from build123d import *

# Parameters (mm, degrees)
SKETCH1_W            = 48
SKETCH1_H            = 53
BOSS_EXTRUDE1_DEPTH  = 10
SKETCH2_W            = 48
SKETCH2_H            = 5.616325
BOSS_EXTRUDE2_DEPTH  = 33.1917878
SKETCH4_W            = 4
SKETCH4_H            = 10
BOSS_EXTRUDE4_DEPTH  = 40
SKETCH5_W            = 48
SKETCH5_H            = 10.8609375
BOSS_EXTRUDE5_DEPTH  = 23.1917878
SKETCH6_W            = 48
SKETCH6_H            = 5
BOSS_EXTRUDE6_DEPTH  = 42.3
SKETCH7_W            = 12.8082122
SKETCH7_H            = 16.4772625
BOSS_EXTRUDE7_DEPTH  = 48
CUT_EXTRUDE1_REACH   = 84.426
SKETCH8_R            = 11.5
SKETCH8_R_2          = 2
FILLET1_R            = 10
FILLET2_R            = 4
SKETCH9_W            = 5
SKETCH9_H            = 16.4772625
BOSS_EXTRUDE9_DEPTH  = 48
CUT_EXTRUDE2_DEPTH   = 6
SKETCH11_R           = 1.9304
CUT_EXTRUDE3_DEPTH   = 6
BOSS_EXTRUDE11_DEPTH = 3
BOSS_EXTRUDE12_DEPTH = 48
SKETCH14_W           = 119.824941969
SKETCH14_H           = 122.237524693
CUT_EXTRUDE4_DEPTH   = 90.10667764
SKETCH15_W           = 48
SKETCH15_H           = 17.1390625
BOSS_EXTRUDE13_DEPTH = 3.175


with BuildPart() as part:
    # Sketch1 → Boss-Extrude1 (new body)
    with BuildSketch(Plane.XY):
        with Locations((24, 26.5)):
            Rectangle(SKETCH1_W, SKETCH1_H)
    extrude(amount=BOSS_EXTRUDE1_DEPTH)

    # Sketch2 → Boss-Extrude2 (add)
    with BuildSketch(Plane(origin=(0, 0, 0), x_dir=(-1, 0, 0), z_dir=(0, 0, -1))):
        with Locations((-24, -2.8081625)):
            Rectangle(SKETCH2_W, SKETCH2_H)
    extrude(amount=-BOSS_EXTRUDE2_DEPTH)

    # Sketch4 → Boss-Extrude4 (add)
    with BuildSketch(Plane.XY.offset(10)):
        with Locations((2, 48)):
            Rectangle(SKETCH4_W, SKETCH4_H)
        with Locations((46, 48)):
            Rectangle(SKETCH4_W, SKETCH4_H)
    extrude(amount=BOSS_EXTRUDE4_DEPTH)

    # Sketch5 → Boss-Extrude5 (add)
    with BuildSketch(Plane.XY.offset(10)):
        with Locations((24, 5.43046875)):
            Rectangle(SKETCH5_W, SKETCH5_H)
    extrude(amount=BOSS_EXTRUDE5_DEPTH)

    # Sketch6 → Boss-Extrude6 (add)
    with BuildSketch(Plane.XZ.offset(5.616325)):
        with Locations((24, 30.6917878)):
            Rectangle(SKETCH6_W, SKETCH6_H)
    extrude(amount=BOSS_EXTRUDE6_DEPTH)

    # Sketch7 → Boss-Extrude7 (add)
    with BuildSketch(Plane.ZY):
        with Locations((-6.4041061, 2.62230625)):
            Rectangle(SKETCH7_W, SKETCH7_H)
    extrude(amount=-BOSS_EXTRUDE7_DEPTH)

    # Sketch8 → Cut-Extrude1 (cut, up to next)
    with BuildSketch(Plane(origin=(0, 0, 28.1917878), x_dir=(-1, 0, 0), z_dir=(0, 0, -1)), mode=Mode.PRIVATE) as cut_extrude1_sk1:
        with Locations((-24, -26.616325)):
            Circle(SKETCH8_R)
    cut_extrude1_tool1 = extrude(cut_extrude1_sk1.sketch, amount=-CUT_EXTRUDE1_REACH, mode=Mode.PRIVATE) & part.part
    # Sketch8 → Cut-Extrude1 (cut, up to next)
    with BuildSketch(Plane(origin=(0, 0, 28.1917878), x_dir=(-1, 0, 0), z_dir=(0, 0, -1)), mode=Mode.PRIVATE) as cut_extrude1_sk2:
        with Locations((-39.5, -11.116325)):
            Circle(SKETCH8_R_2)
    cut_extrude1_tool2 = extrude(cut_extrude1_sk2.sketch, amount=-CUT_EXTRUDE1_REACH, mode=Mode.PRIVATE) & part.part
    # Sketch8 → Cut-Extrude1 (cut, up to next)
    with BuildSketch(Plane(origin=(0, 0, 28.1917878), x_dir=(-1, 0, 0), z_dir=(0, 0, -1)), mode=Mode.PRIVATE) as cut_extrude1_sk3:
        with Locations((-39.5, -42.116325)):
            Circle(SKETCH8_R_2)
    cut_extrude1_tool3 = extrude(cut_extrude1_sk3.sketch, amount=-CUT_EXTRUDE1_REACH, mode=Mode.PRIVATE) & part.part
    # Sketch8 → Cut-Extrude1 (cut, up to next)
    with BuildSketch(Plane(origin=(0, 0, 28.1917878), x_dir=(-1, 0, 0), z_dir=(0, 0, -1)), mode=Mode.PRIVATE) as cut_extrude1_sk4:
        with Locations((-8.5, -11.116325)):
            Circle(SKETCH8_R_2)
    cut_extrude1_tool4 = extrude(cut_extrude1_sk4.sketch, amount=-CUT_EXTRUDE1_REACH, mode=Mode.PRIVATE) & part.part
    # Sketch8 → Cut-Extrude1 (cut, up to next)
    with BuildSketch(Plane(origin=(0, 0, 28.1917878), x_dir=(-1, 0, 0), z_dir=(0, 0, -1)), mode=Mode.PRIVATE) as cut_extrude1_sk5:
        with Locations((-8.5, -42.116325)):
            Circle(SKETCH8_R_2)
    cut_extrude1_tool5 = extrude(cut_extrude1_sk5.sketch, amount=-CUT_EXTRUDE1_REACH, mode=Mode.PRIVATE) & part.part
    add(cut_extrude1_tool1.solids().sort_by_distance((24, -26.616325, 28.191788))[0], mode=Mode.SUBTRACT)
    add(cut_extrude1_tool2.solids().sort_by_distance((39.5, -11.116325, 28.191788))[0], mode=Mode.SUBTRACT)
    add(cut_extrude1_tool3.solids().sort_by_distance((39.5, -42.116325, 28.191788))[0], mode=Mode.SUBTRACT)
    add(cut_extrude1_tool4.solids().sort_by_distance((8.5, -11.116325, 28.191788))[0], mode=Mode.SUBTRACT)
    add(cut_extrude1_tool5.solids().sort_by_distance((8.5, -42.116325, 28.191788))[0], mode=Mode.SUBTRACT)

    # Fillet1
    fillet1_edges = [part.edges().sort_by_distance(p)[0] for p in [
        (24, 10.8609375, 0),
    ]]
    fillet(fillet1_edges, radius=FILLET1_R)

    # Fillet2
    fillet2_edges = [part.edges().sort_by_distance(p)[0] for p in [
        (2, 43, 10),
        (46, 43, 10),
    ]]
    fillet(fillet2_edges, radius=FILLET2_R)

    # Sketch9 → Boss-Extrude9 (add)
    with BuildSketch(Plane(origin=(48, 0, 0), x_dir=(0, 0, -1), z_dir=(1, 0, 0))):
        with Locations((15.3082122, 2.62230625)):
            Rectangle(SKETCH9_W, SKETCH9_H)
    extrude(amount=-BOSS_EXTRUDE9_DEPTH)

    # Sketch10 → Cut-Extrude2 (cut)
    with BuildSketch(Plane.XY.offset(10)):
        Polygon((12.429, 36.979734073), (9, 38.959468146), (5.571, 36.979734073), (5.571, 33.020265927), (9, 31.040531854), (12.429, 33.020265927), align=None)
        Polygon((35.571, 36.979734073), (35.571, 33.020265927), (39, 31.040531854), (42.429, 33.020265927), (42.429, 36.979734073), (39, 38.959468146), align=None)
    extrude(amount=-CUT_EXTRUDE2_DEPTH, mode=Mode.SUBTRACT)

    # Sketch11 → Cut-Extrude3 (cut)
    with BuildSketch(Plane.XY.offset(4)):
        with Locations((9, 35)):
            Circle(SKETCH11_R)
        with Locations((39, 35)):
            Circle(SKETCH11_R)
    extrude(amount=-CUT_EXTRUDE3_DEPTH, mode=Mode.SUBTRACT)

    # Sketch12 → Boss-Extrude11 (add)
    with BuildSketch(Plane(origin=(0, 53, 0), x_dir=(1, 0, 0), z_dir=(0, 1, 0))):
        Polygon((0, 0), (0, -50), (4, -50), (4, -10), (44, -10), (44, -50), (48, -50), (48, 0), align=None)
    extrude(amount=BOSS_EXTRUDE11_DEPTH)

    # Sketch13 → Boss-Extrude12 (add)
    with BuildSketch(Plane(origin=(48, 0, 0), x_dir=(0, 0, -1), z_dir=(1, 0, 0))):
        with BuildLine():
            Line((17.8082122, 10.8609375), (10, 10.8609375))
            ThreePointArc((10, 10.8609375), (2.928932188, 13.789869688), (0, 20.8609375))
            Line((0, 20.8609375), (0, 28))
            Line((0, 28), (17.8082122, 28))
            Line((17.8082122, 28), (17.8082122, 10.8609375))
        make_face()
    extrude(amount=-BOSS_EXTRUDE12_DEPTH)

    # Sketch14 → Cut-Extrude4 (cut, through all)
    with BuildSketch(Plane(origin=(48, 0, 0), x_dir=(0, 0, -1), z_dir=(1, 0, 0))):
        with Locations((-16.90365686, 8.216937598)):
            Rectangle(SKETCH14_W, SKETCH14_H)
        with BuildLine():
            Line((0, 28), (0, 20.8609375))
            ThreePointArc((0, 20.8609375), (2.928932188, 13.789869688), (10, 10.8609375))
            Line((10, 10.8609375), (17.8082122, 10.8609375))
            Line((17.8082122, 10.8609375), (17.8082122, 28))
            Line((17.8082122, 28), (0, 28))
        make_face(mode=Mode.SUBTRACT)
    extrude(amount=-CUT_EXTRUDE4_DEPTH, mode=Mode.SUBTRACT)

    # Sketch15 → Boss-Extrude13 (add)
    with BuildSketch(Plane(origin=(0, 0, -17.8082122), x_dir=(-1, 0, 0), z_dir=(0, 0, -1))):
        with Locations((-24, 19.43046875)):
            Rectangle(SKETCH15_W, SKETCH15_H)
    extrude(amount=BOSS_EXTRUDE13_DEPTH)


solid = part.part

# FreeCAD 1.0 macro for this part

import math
import FreeCAD as App
import Part
import Sketcher
Q = App.Units.Quantity


def edges_at(feature, points):
    """Names of the edges that pass closest to the given points."""
    edges = feature.Shape.Edges
    near = lambda p: min(range(len(edges)), key=lambda i: edges[i].distToShape(Part.Vertex(*p))[0])
    return sorted({f"Edge{near(p) + 1}" for p in points})

doc = App.newDocument("Part")
body = doc.addObject("PartDesign::Body", "Body")

sketch1 = body.newObject("Sketcher::SketchObject", "Sketch")
sketch1.AttachmentSupport = (doc.getObject("XY_Plane"), [""])
sketch1.MapMode = "FlatFace"
sketch1.addGeometry([
    Part.LineSegment(App.Vector(0, 53, 0), App.Vector(0, 0, 0)),
    Part.LineSegment(App.Vector(0, 0, 0), App.Vector(48, 0, 0)),
    Part.LineSegment(App.Vector(48, 0, 0), App.Vector(48, 53, 0)),
    Part.LineSegment(App.Vector(48, 53, 0), App.Vector(0, 53, 0)),
], False)
sketch1.addConstraint([
    Sketcher.Constraint("Coincident", 0, 2, 1, 1),
    Sketcher.Constraint("Coincident", 1, 2, 2, 1),
    Sketcher.Constraint("Coincident", 2, 2, 3, 1),
    Sketcher.Constraint("Coincident", 3, 2, 0, 1),
    Sketcher.Constraint("Vertical", 0),
    Sketcher.Constraint("Horizontal", 1),
    Sketcher.Constraint("Vertical", 2),
    Sketcher.Constraint("Horizontal", 3),
    Sketcher.Constraint("Coincident", 0, 2, -1, 1),
    Sketcher.Constraint("DistanceX", 1, 1, 1, 2, Q("48 mm")),
    Sketcher.Constraint("DistanceY", 0, 2, 0, 1, Q("53 mm")),
])
pad1 = body.newObject("PartDesign::Pad", "Pad")
pad1.Profile = sketch1
pad1.Length = 10

sketch2 = body.newObject("Sketcher::SketchObject", "Sketch001")
sketch2.AttachmentSupport = (doc.getObject("XY_Plane"), [""])
sketch2.MapMode = "FlatFace"
sketch2.addGeometry([
    Part.LineSegment(App.Vector(48, 0, 0), App.Vector(48, -5.616325, 0)),
    Part.LineSegment(App.Vector(48, -5.616325, 0), App.Vector(0, -5.616325, 0)),
    Part.LineSegment(App.Vector(0, -5.616325, 0), App.Vector(0, 0, 0)),
    Part.LineSegment(App.Vector(0, 0, 0), App.Vector(48, 0, 0)),
], False)
sketch2.addConstraint([
    Sketcher.Constraint("Coincident", 0, 2, 1, 1),
    Sketcher.Constraint("Coincident", 1, 2, 2, 1),
    Sketcher.Constraint("Coincident", 2, 2, 3, 1),
    Sketcher.Constraint("Coincident", 3, 2, 0, 1),
    Sketcher.Constraint("Vertical", 0),
    Sketcher.Constraint("Horizontal", 1),
    Sketcher.Constraint("Vertical", 2),
    Sketcher.Constraint("Horizontal", 3),
    Sketcher.Constraint("Coincident", 2, 2, -1, 1),
    Sketcher.Constraint("DistanceX", 1, 2, 1, 1, Q("48 mm")),
    Sketcher.Constraint("DistanceY", 0, 2, 0, 1, Q("5.616325 mm")),
])
pad2 = body.newObject("PartDesign::Pad", "Pad001")
pad2.Profile = sketch2
pad2.Length = 33.191788

sketch3 = body.newObject("Sketcher::SketchObject", "Sketch002")
sketch3.AttachmentSupport = (doc.getObject("XY_Plane"), [""])
sketch3.MapMode = "FlatFace"
sketch3.AttachmentOffset = App.Placement(App.Vector(0, 0, 10), App.Rotation())
sketch3.addGeometry([
    Part.LineSegment(App.Vector(0, 53, 0), App.Vector(0, 43, 0)),
    Part.LineSegment(App.Vector(0, 43, 0), App.Vector(4, 43, 0)),
    Part.LineSegment(App.Vector(4, 43, 0), App.Vector(4, 53, 0)),
    Part.LineSegment(App.Vector(4, 53, 0), App.Vector(0, 53, 0)),
    Part.LineSegment(App.Vector(44, 53, 0), App.Vector(44, 43, 0)),
    Part.LineSegment(App.Vector(44, 43, 0), App.Vector(48, 43, 0)),
    Part.LineSegment(App.Vector(48, 43, 0), App.Vector(48, 53, 0)),
    Part.LineSegment(App.Vector(48, 53, 0), App.Vector(44, 53, 0)),
], False)
sketch3.addConstraint([
    Sketcher.Constraint("Coincident", 0, 2, 1, 1),
    Sketcher.Constraint("Coincident", 1, 2, 2, 1),
    Sketcher.Constraint("Coincident", 2, 2, 3, 1),
    Sketcher.Constraint("Coincident", 3, 2, 0, 1),
    Sketcher.Constraint("Coincident", 4, 2, 5, 1),
    Sketcher.Constraint("Coincident", 5, 2, 6, 1),
    Sketcher.Constraint("Coincident", 6, 2, 7, 1),
    Sketcher.Constraint("Coincident", 7, 2, 4, 1),
    Sketcher.Constraint("Vertical", 0),
    Sketcher.Constraint("Horizontal", 1),
    Sketcher.Constraint("Vertical", 2),
    Sketcher.Constraint("Horizontal", 3),
    Sketcher.Constraint("Vertical", 4),
    Sketcher.Constraint("Horizontal", 5),
    Sketcher.Constraint("Vertical", 6),
    Sketcher.Constraint("Horizontal", 7),
    Sketcher.Constraint("PointOnObject", 0, 2, -2),
    Sketcher.Constraint("Horizontal", 1, 2, 4, 2),
    Sketcher.Constraint("Horizontal", 3, 2, 6, 2),
    Sketcher.Constraint("Equal", 3, 5),
    Sketcher.Constraint("DistanceX", 1, 1, 1, 2, Q("4 mm")),
    Sketcher.Constraint("DistanceY", 0, 2, 0, 1, Q("10 mm")),
    Sketcher.Constraint("DistanceY", -1, 1, 0, 2, Q("43 mm")),
    Sketcher.Constraint("DistanceX", -1, 1, 4, 2, Q("44 mm")),
])
pad3 = body.newObject("PartDesign::Pad", "Pad002")
pad3.Profile = sketch3
pad3.Length = 40

sketch4 = body.newObject("Sketcher::SketchObject", "Sketch003")
sketch4.AttachmentSupport = (doc.getObject("XY_Plane"), [""])
sketch4.MapMode = "FlatFace"
sketch4.AttachmentOffset = App.Placement(App.Vector(0, 0, 10), App.Rotation())
sketch4.addGeometry([
    Part.LineSegment(App.Vector(0, 10.860938, 0), App.Vector(0, 0, 0)),
    Part.LineSegment(App.Vector(0, 0, 0), App.Vector(48, 0, 0)),
    Part.LineSegment(App.Vector(48, 0, 0), App.Vector(48, 10.860938, 0)),
    Part.LineSegment(App.Vector(48, 10.860938, 0), App.Vector(0, 10.860938, 0)),
], False)
sketch4.addConstraint([
    Sketcher.Constraint("Coincident", 0, 2, 1, 1),
    Sketcher.Constraint("Coincident", 1, 2, 2, 1),
    Sketcher.Constraint("Coincident", 2, 2, 3, 1),
    Sketcher.Constraint("Coincident", 3, 2, 0, 1),
    Sketcher.Constraint("Vertical", 0),
    Sketcher.Constraint("Horizontal", 1),
    Sketcher.Constraint("Vertical", 2),
    Sketcher.Constraint("Horizontal", 3),
    Sketcher.Constraint("Coincident", 0, 2, -1, 1),
    Sketcher.Constraint("DistanceX", 1, 1, 1, 2, Q("48 mm")),
    Sketcher.Constraint("DistanceY", 0, 2, 0, 1, Q("10.860938 mm")),
])
pad4 = body.newObject("PartDesign::Pad", "Pad003")
pad4.Profile = sketch4
pad4.Length = 23.191788

sketch5 = body.newObject("Sketcher::SketchObject", "Sketch004")
sketch5.AttachmentSupport = (doc.getObject("XZ_Plane"), [""])
sketch5.MapMode = "FlatFace"
sketch5.AttachmentOffset = App.Placement(App.Vector(0, 0, 5.616325), App.Rotation())
sketch5.addGeometry([
    Part.LineSegment(App.Vector(0, 33.191788, 0), App.Vector(0, 28.191788, 0)),
    Part.LineSegment(App.Vector(0, 28.191788, 0), App.Vector(48, 28.191788, 0)),
    Part.LineSegment(App.Vector(48, 28.191788, 0), App.Vector(48, 33.191788, 0)),
    Part.LineSegment(App.Vector(48, 33.191788, 0), App.Vector(0, 33.191788, 0)),
], False)
sketch5.addConstraint([
    Sketcher.Constraint("Coincident", 0, 2, 1, 1),
    Sketcher.Constraint("Coincident", 1, 2, 2, 1),
    Sketcher.Constraint("Coincident", 2, 2, 3, 1),
    Sketcher.Constraint("Coincident", 3, 2, 0, 1),
    Sketcher.Constraint("Vertical", 0),
    Sketcher.Constraint("Horizontal", 1),
    Sketcher.Constraint("Vertical", 2),
    Sketcher.Constraint("Horizontal", 3),
    Sketcher.Constraint("PointOnObject", 0, 2, -2),
    Sketcher.Constraint("DistanceX", 1, 1, 1, 2, Q("48 mm")),
    Sketcher.Constraint("DistanceY", 0, 2, 0, 1, Q("5 mm")),
    Sketcher.Constraint("DistanceY", -1, 1, 0, 2, Q("28.191788 mm")),
])
pad5 = body.newObject("PartDesign::Pad", "Pad004")
pad5.Profile = sketch5
pad5.Length = 42.3

sketch6 = body.newObject("Sketcher::SketchObject", "Sketch005")
sketch6.AttachmentSupport = (doc.getObject("YZ_Plane"), [""])
sketch6.MapMode = "FlatFace"
sketch6.addGeometry([
    Part.LineSegment(App.Vector(10.860938, -12.808212, 0), App.Vector(-5.616325, -12.808212, 0)),
    Part.LineSegment(App.Vector(-5.616325, -12.808212, 0), App.Vector(-5.616325, 0, 0)),
    Part.LineSegment(App.Vector(-5.616325, 0, 0), App.Vector(10.860938, 0, 0)),
    Part.LineSegment(App.Vector(10.860938, 0, 0), App.Vector(10.860938, -12.808212, 0)),
], False)
sketch6.addConstraint([
    Sketcher.Constraint("Coincident", 0, 2, 1, 1),
    Sketcher.Constraint("Coincident", 1, 2, 2, 1),
    Sketcher.Constraint("Coincident", 2, 2, 3, 1),
    Sketcher.Constraint("Coincident", 3, 2, 0, 1),
    Sketcher.Constraint("Horizontal", 0),
    Sketcher.Constraint("Vertical", 1),
    Sketcher.Constraint("Horizontal", 2),
    Sketcher.Constraint("Vertical", 3),
    Sketcher.Constraint("PointOnObject", 1, 2, -1),
    Sketcher.Constraint("DistanceX", 0, 2, 0, 1, Q("16.477263 mm")),
    Sketcher.Constraint("DistanceY", 1, 1, 1, 2, Q("12.808212 mm")),
    Sketcher.Constraint("DistanceX", 0, 2, -1, 1, Q("5.616325 mm")),
])
pad6 = body.newObject("PartDesign::Pad", "Pad005")
pad6.Profile = sketch6
pad6.Length = 48

sketch7 = body.newObject("Sketcher::SketchObject", "Sketch006")
sketch7.AttachmentSupport = (doc.getObject("XY_Plane"), [""])
sketch7.MapMode = "FlatFace"
sketch7.AttachmentOffset = App.Placement(App.Vector(0, 0, 28.191788), App.Rotation())
sketch7.addGeometry(Part.Circle(App.Vector(24, -26.616325, 0), App.Vector(0, 0, 1), 11.5), False)
sketch7.addConstraint([
    Sketcher.Constraint("Diameter", 0, Q("23 mm")),
    Sketcher.Constraint("DistanceX", -1, 1, 0, 3, Q("24 mm")),
    Sketcher.Constraint("DistanceY", 0, 3, -1, 1, Q("26.616325 mm")),
])
pocket1 = body.newObject("PartDesign::Pocket", "Pocket")
pocket1.Profile = sketch7
pocket1.Type = "UpToFirst"
pocket1.Reversed = True

sketch8 = body.newObject("Sketcher::SketchObject", "Sketch007")
sketch8.AttachmentSupport = (doc.getObject("XY_Plane"), [""])
sketch8.MapMode = "FlatFace"
sketch8.AttachmentOffset = App.Placement(App.Vector(0, 0, 28.191788), App.Rotation())
sketch8.addGeometry(Part.Circle(App.Vector(39.5, -11.116325, 0), App.Vector(0, 0, 1), 2), False)
sketch8.addConstraint([
    Sketcher.Constraint("Diameter", 0, Q("4 mm")),
    Sketcher.Constraint("DistanceX", -1, 1, 0, 3, Q("39.5 mm")),
    Sketcher.Constraint("DistanceY", 0, 3, -1, 1, Q("11.116325 mm")),
])
pocket2 = body.newObject("PartDesign::Pocket", "Pocket001")
pocket2.Profile = sketch8
pocket2.Type = "UpToFirst"
pocket2.Reversed = True

sketch9 = body.newObject("Sketcher::SketchObject", "Sketch008")
sketch9.AttachmentSupport = (doc.getObject("XY_Plane"), [""])
sketch9.MapMode = "FlatFace"
sketch9.AttachmentOffset = App.Placement(App.Vector(0, 0, 28.191788), App.Rotation())
sketch9.addGeometry(Part.Circle(App.Vector(39.5, -42.116325, 0), App.Vector(0, 0, 1), 2), False)
sketch9.addConstraint([
    Sketcher.Constraint("Diameter", 0, Q("4 mm")),
    Sketcher.Constraint("DistanceX", -1, 1, 0, 3, Q("39.5 mm")),
    Sketcher.Constraint("DistanceY", 0, 3, -1, 1, Q("42.116325 mm")),
])
pocket3 = body.newObject("PartDesign::Pocket", "Pocket002")
pocket3.Profile = sketch9
pocket3.Type = "UpToFirst"
pocket3.Reversed = True

sketch10 = body.newObject("Sketcher::SketchObject", "Sketch009")
sketch10.AttachmentSupport = (doc.getObject("XY_Plane"), [""])
sketch10.MapMode = "FlatFace"
sketch10.AttachmentOffset = App.Placement(App.Vector(0, 0, 28.191788), App.Rotation())
sketch10.addGeometry(Part.Circle(App.Vector(8.5, -11.116325, 0), App.Vector(0, 0, 1), 2), False)
sketch10.addConstraint([
    Sketcher.Constraint("Diameter", 0, Q("4 mm")),
    Sketcher.Constraint("DistanceX", -1, 1, 0, 3, Q("8.5 mm")),
    Sketcher.Constraint("DistanceY", 0, 3, -1, 1, Q("11.116325 mm")),
])
pocket4 = body.newObject("PartDesign::Pocket", "Pocket003")
pocket4.Profile = sketch10
pocket4.Type = "UpToFirst"
pocket4.Reversed = True

sketch11 = body.newObject("Sketcher::SketchObject", "Sketch010")
sketch11.AttachmentSupport = (doc.getObject("XY_Plane"), [""])
sketch11.MapMode = "FlatFace"
sketch11.AttachmentOffset = App.Placement(App.Vector(0, 0, 28.191788), App.Rotation())
sketch11.addGeometry(Part.Circle(App.Vector(8.5, -42.116325, 0), App.Vector(0, 0, 1), 2), False)
sketch11.addConstraint([
    Sketcher.Constraint("Diameter", 0, Q("4 mm")),
    Sketcher.Constraint("DistanceX", -1, 1, 0, 3, Q("8.5 mm")),
    Sketcher.Constraint("DistanceY", 0, 3, -1, 1, Q("42.116325 mm")),
])
pocket5 = body.newObject("PartDesign::Pocket", "Pocket004")
pocket5.Profile = sketch11
pocket5.Type = "UpToFirst"
pocket5.Reversed = True
doc.recompute()

fillet = body.newObject("PartDesign::Fillet", "Fillet")
fillet.Base = (pocket5, edges_at(pocket5, [(24, 10.861, 0)]))
fillet.Radius = 10
doc.recompute()

fillet2 = body.newObject("PartDesign::Fillet", "Fillet001")
fillet2.Base = (fillet, edges_at(fillet, [(2, 43, 10), (46, 43, 10)]))
fillet2.Radius = 4

sketch12 = body.newObject("Sketcher::SketchObject", "Sketch011")
sketch12.AttachmentSupport = (doc.getObject("YZ_Plane"), [""])
sketch12.MapMode = "FlatFace"
sketch12.AttachmentOffset = App.Placement(App.Vector(0, 0, 48), App.Rotation())
sketch12.addGeometry([
    Part.LineSegment(App.Vector(10.860938, -12.808212, 0), App.Vector(-5.616325, -12.808212, 0)),
    Part.LineSegment(App.Vector(-5.616325, -12.808212, 0), App.Vector(-5.616325, -17.808212, 0)),
    Part.LineSegment(App.Vector(-5.616325, -17.808212, 0), App.Vector(10.860938, -17.808212, 0)),
    Part.LineSegment(App.Vector(10.860938, -17.808212, 0), App.Vector(10.860938, -12.808212, 0)),
], False)
sketch12.addConstraint([
    Sketcher.Constraint("Coincident", 0, 2, 1, 1),
    Sketcher.Constraint("Coincident", 1, 2, 2, 1),
    Sketcher.Constraint("Coincident", 2, 2, 3, 1),
    Sketcher.Constraint("Coincident", 3, 2, 0, 1),
    Sketcher.Constraint("Horizontal", 0),
    Sketcher.Constraint("Vertical", 1),
    Sketcher.Constraint("Horizontal", 2),
    Sketcher.Constraint("Vertical", 3),
    Sketcher.Constraint("DistanceY", 1, 2, 1, 1, Q("5 mm")),
    Sketcher.Constraint("DistanceX", 0, 2, 0, 1, Q("16.477263 mm")),
    Sketcher.Constraint("DistanceX", 0, 2, -1, 1, Q("5.616325 mm")),
    Sketcher.Constraint("DistanceY", 0, 2, -1, 1, Q("12.808212 mm")),
])
pad7 = body.newObject("PartDesign::Pad", "Pad006")
pad7.Profile = sketch12
pad7.Length = 48
pad7.Reversed = True

sketch13 = body.newObject("Sketcher::SketchObject", "Sketch012")
sketch13.AttachmentSupport = (doc.getObject("XY_Plane"), [""])
sketch13.MapMode = "FlatFace"
sketch13.AttachmentOffset = App.Placement(App.Vector(0, 0, 10), App.Rotation())
sketch13.addGeometry([
    Part.LineSegment(App.Vector(12.429, 36.979734, 0), App.Vector(9, 38.959468, 0)),
    Part.LineSegment(App.Vector(9, 38.959468, 0), App.Vector(5.571, 36.979734, 0)),
    Part.LineSegment(App.Vector(5.571, 36.979734, 0), App.Vector(5.571, 33.020266, 0)),
    Part.LineSegment(App.Vector(5.571, 33.020266, 0), App.Vector(9, 31.040532, 0)),
    Part.LineSegment(App.Vector(9, 31.040532, 0), App.Vector(12.429, 33.020266, 0)),
    Part.LineSegment(App.Vector(12.429, 33.020266, 0), App.Vector(12.429, 36.979734, 0)),
    Part.LineSegment(App.Vector(35.571, 36.979734, 0), App.Vector(35.571, 33.020266, 0)),
    Part.LineSegment(App.Vector(35.571, 33.020266, 0), App.Vector(39, 31.040532, 0)),
    Part.LineSegment(App.Vector(39, 31.040532, 0), App.Vector(42.429, 33.020266, 0)),
    Part.LineSegment(App.Vector(42.429, 33.020266, 0), App.Vector(42.429, 36.979734, 0)),
    Part.LineSegment(App.Vector(42.429, 36.979734, 0), App.Vector(39, 38.959468, 0)),
    Part.LineSegment(App.Vector(39, 38.959468, 0), App.Vector(35.571, 36.979734, 0)),
], False)
sketch13.addConstraint([
    Sketcher.Constraint("Coincident", 0, 2, 1, 1),
    Sketcher.Constraint("Coincident", 1, 2, 2, 1),
    Sketcher.Constraint("Coincident", 2, 2, 3, 1),
    Sketcher.Constraint("Coincident", 3, 2, 4, 1),
    Sketcher.Constraint("Coincident", 4, 2, 5, 1),
    Sketcher.Constraint("Coincident", 5, 2, 0, 1),
    Sketcher.Constraint("Coincident", 6, 2, 7, 1),
    Sketcher.Constraint("Coincident", 7, 2, 8, 1),
    Sketcher.Constraint("Coincident", 8, 2, 9, 1),
    Sketcher.Constraint("Coincident", 9, 2, 10, 1),
    Sketcher.Constraint("Coincident", 10, 2, 11, 1),
    Sketcher.Constraint("Coincident", 11, 2, 6, 1),
    Sketcher.Constraint("Vertical", 2),
    Sketcher.Constraint("Vertical", 5),
    Sketcher.Constraint("Vertical", 6),
    Sketcher.Constraint("Vertical", 9),
    Sketcher.Constraint("Parallel", 0, 3),
    Sketcher.Constraint("Parallel", 1, 4),
    Sketcher.Constraint("Parallel", 3, 7),
    Sketcher.Constraint("Parallel", 4, 8),
    Sketcher.Constraint("Parallel", 7, 10),
    Sketcher.Constraint("Parallel", 8, 11),
    Sketcher.Constraint("Horizontal", 2, 2, 4, 2),
    Sketcher.Constraint("Horizontal", 1, 2, 5, 2),
    Sketcher.Constraint("Horizontal", 4, 2, 6, 2),
    Sketcher.Constraint("Horizontal", 3, 2, 7, 2),
    Sketcher.Constraint("Horizontal", 6, 2, 8, 2),
    Sketcher.Constraint("Horizontal", 5, 2, 9, 2),
    Sketcher.Constraint("Horizontal", 0, 2, 10, 2),
    Sketcher.Constraint("Vertical", 0, 2, 3, 2),
    Sketcher.Constraint("Angle", 0, Q("150 deg")),
    Sketcher.Constraint("DistanceX", -1, 1, 0, 2, Q("9 mm")),
    Sketcher.Constraint("DistanceX", -1, 1, 7, 2, Q("39 mm")),
    Sketcher.Constraint("DistanceX", -1, 1, 1, 2, Q("5.571 mm")),
    Sketcher.Constraint("DistanceY", 2, 2, 2, 1, Q("3.959468 mm")),
    Sketcher.Constraint("DistanceY", -1, 1, 0, 2, Q("38.959468 mm")),
])
pocket6 = body.newObject("PartDesign::Pocket", "Pocket005")
pocket6.Profile = sketch13
pocket6.Length = 6

sketch14 = body.newObject("Sketcher::SketchObject", "Sketch013")
sketch14.AttachmentSupport = (doc.getObject("XY_Plane"), [""])
sketch14.MapMode = "FlatFace"
sketch14.AttachmentOffset = App.Placement(App.Vector(0, 0, 4), App.Rotation())
sketch14.addGeometry([
    Part.Circle(App.Vector(9, 35, 0), App.Vector(0, 0, 1), 1.9304),
    Part.Circle(App.Vector(39, 35, 0), App.Vector(0, 0, 1), 1.9304),
], False)
sketch14.addConstraint([
    Sketcher.Constraint("Equal", 0, 1),
    Sketcher.Constraint("Horizontal", 0, 3, 1, 3),
    Sketcher.Constraint("DistanceX", -1, 1, 0, 3, Q("9 mm")),
    Sketcher.Constraint("DistanceY", -1, 1, 0, 3, Q("35 mm")),
    Sketcher.Constraint("DistanceX", -1, 1, 1, 3, Q("39 mm")),
    Sketcher.Constraint("Diameter", 0, Q("3.8608 mm")),
])
pocket7 = body.newObject("PartDesign::Pocket", "Pocket006")
pocket7.Profile = sketch14
pocket7.Length = 6

sketch15 = body.newObject("Sketcher::SketchObject", "Sketch014")
sketch15.AttachmentSupport = (doc.getObject("XZ_Plane"), [""])
sketch15.MapMode = "FlatFace"
sketch15.AttachmentOffset = App.Placement(App.Vector(0, 0, -53), App.Rotation())
sketch15.addGeometry([
    Part.LineSegment(App.Vector(0, 0, 0), App.Vector(0, 50, 0)),
    Part.LineSegment(App.Vector(0, 50, 0), App.Vector(4, 50, 0)),
    Part.LineSegment(App.Vector(4, 50, 0), App.Vector(4, 10, 0)),
    Part.LineSegment(App.Vector(4, 10, 0), App.Vector(44, 10, 0)),
    Part.LineSegment(App.Vector(44, 10, 0), App.Vector(44, 50, 0)),
    Part.LineSegment(App.Vector(44, 50, 0), App.Vector(48, 50, 0)),
    Part.LineSegment(App.Vector(48, 50, 0), App.Vector(48, 0, 0)),
    Part.LineSegment(App.Vector(48, 0, 0), App.Vector(0, 0, 0)),
], False)
sketch15.addConstraint([
    Sketcher.Constraint("Coincident", 0, 2, 1, 1),
    Sketcher.Constraint("Coincident", 1, 2, 2, 1),
    Sketcher.Constraint("Coincident", 2, 2, 3, 1),
    Sketcher.Constraint("Coincident", 3, 2, 4, 1),
    Sketcher.Constraint("Coincident", 4, 2, 5, 1),
    Sketcher.Constraint("Coincident", 5, 2, 6, 1),
    Sketcher.Constraint("Coincident", 6, 2, 7, 1),
    Sketcher.Constraint("Coincident", 7, 2, 0, 1),
    Sketcher.Constraint("Vertical", 0),
    Sketcher.Constraint("Horizontal", 1),
    Sketcher.Constraint("Vertical", 2),
    Sketcher.Constraint("Horizontal", 3),
    Sketcher.Constraint("Vertical", 4),
    Sketcher.Constraint("Horizontal", 5),
    Sketcher.Constraint("Vertical", 6),
    Sketcher.Constraint("Horizontal", 7),
    Sketcher.Constraint("Coincident", 7, 2, -1, 1),
    Sketcher.Constraint("Horizontal", 1, 2, 4, 2),
    Sketcher.Constraint("Equal", 1, 5),
    Sketcher.Constraint("Equal", 3, 2),
    Sketcher.Constraint("DistanceX", 1, 1, 1, 2, Q("4 mm")),
    Sketcher.Constraint("DistanceX", 3, 1, 3, 2, Q("40 mm")),
    Sketcher.Constraint("DistanceY", 0, 1, 0, 2, Q("50 mm")),
])
pad8 = body.newObject("PartDesign::Pad", "Pad007")
pad8.Profile = sketch15
pad8.Length = 3
pad8.Reversed = True

sketch16 = body.newObject("Sketcher::SketchObject", "Sketch015")
sketch16.AttachmentSupport = (doc.getObject("YZ_Plane"), [""])
sketch16.MapMode = "FlatFace"
sketch16.AttachmentOffset = App.Placement(App.Vector(0, 0, 48), App.Rotation())
sketch16.addGeometry([
    Part.LineSegment(App.Vector(10.860938, -10, 0), App.Vector(10.860938, -17.808212, 0)),
    Part.LineSegment(App.Vector(10.860938, -17.808212, 0), App.Vector(28, -17.808212, 0)),
    Part.LineSegment(App.Vector(28, -17.808212, 0), App.Vector(28, 0, 0)),
    Part.LineSegment(App.Vector(28, 0, 0), App.Vector(20.860937, 0, 0)),
    Part.ArcOfCircle(Part.Circle(App.Vector(20.860937, -10, 0), App.Vector(0, 0, 1), 10), math.radians(90), math.radians(180)),
], False)
sketch16.addConstraint([
    Sketcher.Constraint("Coincident", 0, 2, 1, 1),
    Sketcher.Constraint("Coincident", 1, 2, 2, 1),
    Sketcher.Constraint("Coincident", 2, 2, 3, 1),
    Sketcher.Constraint("Tangent", 3, 2, 4, 1),
    Sketcher.Constraint("Tangent", 4, 2, 0, 1),
    Sketcher.Constraint("Vertical", 0),
    Sketcher.Constraint("Horizontal", 1),
    Sketcher.Constraint("Vertical", 2),
    Sketcher.Constraint("Horizontal", 3),
    Sketcher.Constraint("PointOnObject", 2, 2, -1),
    Sketcher.Constraint("Radius", 4, Q("10 mm")),
    Sketcher.Constraint("DistanceX", -1, 1, 1, 2, Q("28 mm")),
    Sketcher.Constraint("DistanceX", 1, 1, 1, 2, Q("17.139063 mm")),
    Sketcher.Constraint("DistanceY", 0, 2, 0, 1, Q("7.808212 mm")),
])
pad9 = body.newObject("PartDesign::Pad", "Pad008")
pad9.Profile = sketch16
pad9.Length = 48
pad9.Reversed = True

sketch17 = body.newObject("Sketcher::SketchObject", "Sketch016")
sketch17.AttachmentSupport = (doc.getObject("YZ_Plane"), [""])
sketch17.MapMode = "FlatFace"
sketch17.AttachmentOffset = App.Placement(App.Vector(0, 0, 48), App.Rotation())
sketch17.addGeometry([
    Part.LineSegment(App.Vector(69.3357, 76.816128, 0), App.Vector(-52.901825, 76.816128, 0)),
    Part.LineSegment(App.Vector(-52.901825, 76.816128, 0), App.Vector(-52.901825, -43.008814, 0)),
    Part.LineSegment(App.Vector(-52.901825, -43.008814, 0), App.Vector(69.3357, -43.008814, 0)),
    Part.LineSegment(App.Vector(69.3357, -43.008814, 0), App.Vector(69.3357, 76.816128, 0)),
    Part.LineSegment(App.Vector(20.860937, 0, 0), App.Vector(28, 0, 0)),
    Part.LineSegment(App.Vector(28, 0, 0), App.Vector(28, -17.808212, 0)),
    Part.LineSegment(App.Vector(28, -17.808212, 0), App.Vector(10.860938, -17.808212, 0)),
    Part.LineSegment(App.Vector(10.860938, -17.808212, 0), App.Vector(10.860938, -10, 0)),
    Part.ArcOfCircle(Part.Circle(App.Vector(20.860937, -10, 0), App.Vector(0, 0, 1), 10), math.radians(90), math.radians(180)),
], False)
sketch17.addConstraint([
    Sketcher.Constraint("Coincident", 0, 2, 1, 1),
    Sketcher.Constraint("Coincident", 1, 2, 2, 1),
    Sketcher.Constraint("Coincident", 2, 2, 3, 1),
    Sketcher.Constraint("Coincident", 3, 2, 0, 1),
    Sketcher.Constraint("Coincident", 4, 2, 5, 1),
    Sketcher.Constraint("Coincident", 5, 2, 6, 1),
    Sketcher.Constraint("Coincident", 6, 2, 7, 1),
    Sketcher.Constraint("Tangent", 7, 2, 8, 2),
    Sketcher.Constraint("Tangent", 8, 1, 4, 1),
    Sketcher.Constraint("Horizontal", 0),
    Sketcher.Constraint("Vertical", 1),
    Sketcher.Constraint("Horizontal", 2),
    Sketcher.Constraint("Vertical", 3),
    Sketcher.Constraint("Horizontal", 4),
    Sketcher.Constraint("Vertical", 5),
    Sketcher.Constraint("Horizontal", 6),
    Sketcher.Constraint("Vertical", 7),
    Sketcher.Constraint("PointOnObject", 4, 2, -1),
    Sketcher.Constraint("Radius", 8, Q("10 mm")),
    Sketcher.Constraint("DistanceX", -1, 1, 4, 2, Q("28 mm")),
    Sketcher.Constraint("DistanceY", 1, 2, 1, 1, Q("119.824942 mm")),
    Sketcher.Constraint("DistanceX", -1, 1, 2, 2, Q("69.3357 mm")),
    Sketcher.Constraint("DistanceY", 2, 2, 5, 2, Q("25.200602 mm")),
    Sketcher.Constraint("DistanceX", 0, 2, 0, 1, Q("122.237525 mm")),
    Sketcher.Constraint("DistanceX", 4, 1, 4, 2, Q("7.139063 mm")),
    Sketcher.Constraint("DistanceY", 5, 2, 5, 1, Q("17.808212 mm")),
])
pocket8 = body.newObject("PartDesign::Pocket", "Pocket007")
pocket8.Profile = sketch17
pocket8.Type = "ThroughAll"

sketch18 = body.newObject("Sketcher::SketchObject", "Sketch017")
sketch18.AttachmentSupport = (doc.getObject("XY_Plane"), [""])
sketch18.MapMode = "FlatFace"
sketch18.AttachmentOffset = App.Placement(App.Vector(0, 0, -17.808212), App.Rotation())
sketch18.addGeometry([
    Part.LineSegment(App.Vector(48, 28, 0), App.Vector(48, 10.860938, 0)),
    Part.LineSegment(App.Vector(48, 10.860938, 0), App.Vector(0, 10.860938, 0)),
    Part.LineSegment(App.Vector(0, 10.860938, 0), App.Vector(0, 28, 0)),
    Part.LineSegment(App.Vector(0, 28, 0), App.Vector(48, 28, 0)),
], False)
sketch18.addConstraint([
    Sketcher.Constraint("Coincident", 0, 2, 1, 1),
    Sketcher.Constraint("Coincident", 1, 2, 2, 1),
    Sketcher.Constraint("Coincident", 2, 2, 3, 1),
    Sketcher.Constraint("Coincident", 3, 2, 0, 1),
    Sketcher.Constraint("Vertical", 0),
    Sketcher.Constraint("Horizontal", 1),
    Sketcher.Constraint("Vertical", 2),
    Sketcher.Constraint("Horizontal", 3),
    Sketcher.Constraint("PointOnObject", 1, 2, -2),
    Sketcher.Constraint("DistanceX", 1, 2, 1, 1, Q("48 mm")),
    Sketcher.Constraint("DistanceY", -1, 1, 2, 2, Q("28 mm")),
    Sketcher.Constraint("DistanceY", 0, 2, 0, 1, Q("17.139063 mm")),
])
pad10 = body.newObject("PartDesign::Pad", "Pad009")
pad10.Profile = sketch18
pad10.Length = 3.175
pad10.Reversed = True

doc.recompute()
